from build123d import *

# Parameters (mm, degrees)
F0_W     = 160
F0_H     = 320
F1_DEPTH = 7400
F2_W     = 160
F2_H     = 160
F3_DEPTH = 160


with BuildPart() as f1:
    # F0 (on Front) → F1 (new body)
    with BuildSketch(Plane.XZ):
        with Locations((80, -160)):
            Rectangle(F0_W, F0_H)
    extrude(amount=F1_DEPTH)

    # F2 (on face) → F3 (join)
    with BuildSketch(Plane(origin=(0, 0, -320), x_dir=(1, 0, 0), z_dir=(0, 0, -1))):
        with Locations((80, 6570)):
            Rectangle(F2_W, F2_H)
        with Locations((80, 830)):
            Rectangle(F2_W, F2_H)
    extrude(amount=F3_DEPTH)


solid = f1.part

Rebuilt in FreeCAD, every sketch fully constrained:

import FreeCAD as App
import Part
import Sketcher
from FreeCAD import Vector


def add_polygon(sketch, points):
    """Adds a closed chain of lines whose ends are joined by coincident constraints."""
    first, n = sketch.GeometryCount, len(points)
    for a, b in zip(points, points[1:] + points[:1]):
        sketch.addGeometry(Part.LineSegment(App.Vector(*a, 0), App.Vector(*b, 0)), False)
    for i in range(n):
        sketch.addConstraint(Sketcher.Constraint("Coincident", first + i, 2, first + (i + 1) % n, 1))

doc = App.newDocument("Part")
params = doc.addObject("Spreadsheet::Sheet", "Params")
for row, (alias, value) in enumerate([
    ("sketch1_width", "160 mm"),
    ("sketch1_height", "320 mm"),
    ("pad1_length", "7400 mm"),
    ("sketch2_width", "160 mm"),
    ("pad2_length", "160 mm"),
], start=1):
    params.set(f"A{row}", alias)
    params.set(f"B{row}", "=" + value)
    params.setAlias(f"B{row}", alias)

body = doc.addObject("PartDesign::Body", "Body")

# Sketch on XZ plane
sketch1 = body.newObject("Sketcher::SketchObject", "Sketch")
sketch1.AttachmentSupport = (doc.getObject("XZ_Plane"), [""])
sketch1.MapMode = "FlatFace"
add_polygon(sketch1, [(0, 0), (0, -320), (160, -320), (160, 0)])  # lines 0-3
sketch1.addConstraint(Sketcher.Constraint("Vertical", 0))
sketch1.addConstraint(Sketcher.Constraint("Horizontal", 1))
sketch1.addConstraint(Sketcher.Constraint("Vertical", 2))
sketch1.addConstraint(Sketcher.Constraint("Horizontal", 3))
sketch1.addConstraint(Sketcher.Constraint("Coincident", 3, 2, -1, 1))
sketch1.addConstraint(Sketcher.Constraint("DistanceX", 1, 1, 1, 2, 160.0))
sketch1.addConstraint(Sketcher.Constraint("DistanceY", 0, 2, 0, 1, 320.0))
sketch1.setExpression("Constraints[9]", "Params.sketch1_width")
sketch1.setExpression("Constraints[10]", "Params.sketch1_height")
pad1 = body.newObject("PartDesign::Pad", "Pad")
pad1.Profile = sketch1
pad1.setExpression("Length", "Params.pad1_length")

# Sketch on XY plane
sketch2 = body.newObject("Sketcher::SketchObject", "Sketch001")
sketch2.AttachmentSupport = (doc.getObject("XY_Plane"), [""])
sketch2.MapMode = "FlatFace"
sketch2.AttachmentOffset = App.Placement(Vector(0, 0, -320), App.Rotation())
add_polygon(sketch2, [(0, -6650), (0, -6490), (160, -6490), (160, -6650)])  # lines 0-3
add_polygon(sketch2, [(0, -910), (0, -750), (160, -750), (160, -910)])  # lines 4-7
sketch2.addConstraint(Sketcher.Constraint("Vertical", 0))
sketch2.addConstraint(Sketcher.Constraint("Horizontal", 1))
sketch2.addConstraint(Sketcher.Constraint("Vertical", 2))
sketch2.addConstraint(Sketcher.Constraint("Horizontal", 3))
sketch2.addConstraint(Sketcher.Constraint("Vertical", 4))
sketch2.addConstraint(Sketcher.Constraint("Horizontal", 5))
sketch2.addConstraint(Sketcher.Constraint("Vertical", 6))
sketch2.addConstraint(Sketcher.Constraint("Horizontal", 7))
sketch2.addConstraint(Sketcher.Constraint("PointOnObject", 0, 2, -2))
sketch2.addConstraint(Sketcher.Constraint("PointOnObject", 4, 2, -2))
sketch2.addConstraint(Sketcher.Constraint("Vertical", 2, 2, 5, 2))
sketch2.addConstraint(Sketcher.Constraint("Equal", 7, 0))
sketch2.addConstraint(Sketcher.Constraint("Equal", 2, 4))
sketch2.addConstraint(Sketcher.Constraint("DistanceX", 1, 1, 1, 2, 160.0))
sketch2.addConstraint(Sketcher.Constraint("DistanceY", 0, 2, -1, 1, 6490.0))
sketch2.addConstraint(Sketcher.Constraint("DistanceY", 4, 2, -1, 1, 750.0))
sketch2.setExpression("Constraints[21]", "Params.sketch2_width")
pad2 = body.newObject("PartDesign::Pad", "Pad001")
pad2.Profile = sketch2
pad2.setExpression("Length", "Params.pad2_length")
pad2.Reversed = True

doc.recompute()
